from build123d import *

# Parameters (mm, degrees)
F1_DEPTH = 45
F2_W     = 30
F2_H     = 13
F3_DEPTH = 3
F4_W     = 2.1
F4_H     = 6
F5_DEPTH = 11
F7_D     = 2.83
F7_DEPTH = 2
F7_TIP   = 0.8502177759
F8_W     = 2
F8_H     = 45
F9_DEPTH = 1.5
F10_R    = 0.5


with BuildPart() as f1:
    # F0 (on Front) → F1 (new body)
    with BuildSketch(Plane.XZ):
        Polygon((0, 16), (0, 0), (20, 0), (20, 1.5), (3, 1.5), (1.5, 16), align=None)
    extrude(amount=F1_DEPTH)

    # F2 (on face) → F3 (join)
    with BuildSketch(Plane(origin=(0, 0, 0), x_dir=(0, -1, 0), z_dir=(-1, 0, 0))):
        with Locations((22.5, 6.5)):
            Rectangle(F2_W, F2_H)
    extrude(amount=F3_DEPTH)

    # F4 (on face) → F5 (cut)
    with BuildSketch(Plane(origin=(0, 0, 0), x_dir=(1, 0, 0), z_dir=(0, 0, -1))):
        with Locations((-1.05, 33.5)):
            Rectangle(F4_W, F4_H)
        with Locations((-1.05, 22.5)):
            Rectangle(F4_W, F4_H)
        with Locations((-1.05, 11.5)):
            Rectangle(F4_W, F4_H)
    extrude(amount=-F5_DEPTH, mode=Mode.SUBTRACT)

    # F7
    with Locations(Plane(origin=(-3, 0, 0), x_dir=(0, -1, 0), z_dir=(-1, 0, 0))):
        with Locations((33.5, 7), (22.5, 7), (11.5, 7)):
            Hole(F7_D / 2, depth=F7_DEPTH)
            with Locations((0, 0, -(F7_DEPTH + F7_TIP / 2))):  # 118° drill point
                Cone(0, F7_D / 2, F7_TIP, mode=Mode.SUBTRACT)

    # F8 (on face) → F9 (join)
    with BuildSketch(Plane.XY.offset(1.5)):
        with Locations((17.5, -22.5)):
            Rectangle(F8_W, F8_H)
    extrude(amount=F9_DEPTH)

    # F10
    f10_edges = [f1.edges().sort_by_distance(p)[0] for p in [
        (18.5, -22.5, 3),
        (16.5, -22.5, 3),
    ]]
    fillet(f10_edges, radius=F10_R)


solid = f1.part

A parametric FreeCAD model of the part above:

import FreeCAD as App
import Part
import Sketcher
Q = App.Units.Quantity


def edges_at(feature, points):
    """Names of the edges that pass closest to the given points."""
    edges = feature.Shape.Edges
    near = lambda p: min(range(len(edges)), key=lambda i: edges[i].distToShape(Part.Vertex(*p))[0])
    return sorted({f"Edge{near(p) + 1}" for p in points})

doc = App.newDocument("Part")
params = doc.addObject("Spreadsheet::Sheet", "Params")
for row, (alias, value) in enumerate([
    ("sketch1_width", "20 mm"),
    ("sketch1_width2", "17 mm"),
    ("sketch1_height", "16 mm"),
    ("sketch1_width3", "1.5 mm"),
    ("pad1_length", "45 mm"),
    ("sketch2_width", "30 mm"),
    ("sketch2_height", "13 mm"),
    ("pad2_length", "3 mm"),
    ("sketch3_height", "6 mm"),
    ("sketch3_width", "2.1 mm"),
    ("pocket1_length", "11 mm"),
    ("sketch4_diameter", "2.83 mm"),
    ("hole_diameter", "2.83 mm"),
    ("hole_depth", "2 mm"),
    ("sketch5_width", "2 mm"),
    ("sketch5_height", "45 mm"),
    ("pad3_length", "1.5 mm"),
    ("fillet_radius", "0.5 mm"),
], start=1):
    params.set(f"A{row}", alias)
    params.set(f"B{row}", "=" + value)
    params.setAlias(f"B{row}", alias)

body = doc.addObject("PartDesign::Body", "Body")

sketch1 = body.newObject("Sketcher::SketchObject", "Sketch")
sketch1.AttachmentSupport = (doc.getObject("XZ_Plane"), [""])
sketch1.MapMode = "FlatFace"
sketch1.addGeometry([
    Part.LineSegment(App.Vector(0, 16, 0), App.Vector(0, 0, 0)),
    Part.LineSegment(App.Vector(0, 0, 0), App.Vector(20, 0, 0)),
    Part.LineSegment(App.Vector(20, 0, 0), App.Vector(20, 1.5, 0)),
    Part.LineSegment(App.Vector(20, 1.5, 0), App.Vector(3, 1.5, 0)),
    Part.LineSegment(App.Vector(3, 1.5, 0), App.Vector(1.5, 16, 0)),
    Part.LineSegment(App.Vector(1.5, 16, 0), App.Vector(0, 16, 0)),
], False)
sketch1.addConstraint([
    Sketcher.Constraint("Coincident", 0, 2, 1, 1),
    Sketcher.Constraint("Coincident", 1, 2, 2, 1),
    Sketcher.Constraint("Coincident", 2, 2, 3, 1),
    Sketcher.Constraint("Coincident", 3, 2, 4, 1),
    Sketcher.Constraint("Coincident", 4, 2, 5, 1),
    Sketcher.Constraint("Coincident", 5, 2, 0, 1),
    Sketcher.Constraint("Vertical", 0),
    Sketcher.Constraint("Horizontal", 1),
    Sketcher.Constraint("Vertical", 2),
    Sketcher.Constraint("Horizontal", 3),
    Sketcher.Constraint("Horizontal", 5),
    Sketcher.Constraint("Coincident", 0, 2, -1, 1),
    Sketcher.Constraint("Equal", 5, 2),
    Sketcher.Constraint("DistanceX", 1, 1, 1, 2, Q("20 mm")),
    Sketcher.Constraint("DistanceX", 3, 2, 3, 1, Q("17 mm")),
    Sketcher.Constraint("DistanceY", 0, 2, 0, 1, Q("16 mm")),
    Sketcher.Constraint("DistanceX", 5, 2, 5, 1, Q("1.5 mm")),
])
sketch1.setExpression("Constraints[13]", "Params.sketch1_width")
sketch1.setExpression("Constraints[14]", "Params.sketch1_width2")
sketch1.setExpression("Constraints[15]", "Params.sketch1_height")
sketch1.setExpression("Constraints[16]", "Params.sketch1_width3")
pad1 = body.newObject("PartDesign::Pad", "Pad")
pad1.Profile = sketch1
pad1.setExpression("Length", "Params.pad1_length")

sketch2 = body.newObject("Sketcher::SketchObject", "Sketch001")
sketch2.AttachmentSupport = (doc.getObject("YZ_Plane"), [""])
sketch2.MapMode = "FlatFace"
sketch2.addGeometry([
    Part.LineSegment(App.Vector(-7.5, 13, 0), App.Vector(-7.5, 0, 0)),
    Part.LineSegment(App.Vector(-7.5, 0, 0), App.Vector(-37.5, 0, 0)),
    Part.LineSegment(App.Vector(-37.5, 0, 0), App.Vector(-37.5, 13, 0)),
    Part.LineSegment(App.Vector(-37.5, 13, 0), App.Vector(-7.5, 13, 0)),
], False)
sketch2.addConstraint([
    Sketcher.Constraint("Coincident", 0, 2, 1, 1),
    Sketcher.Constraint("Coincident", 1, 2, 2, 1),
    Sketcher.Constraint("Coincident", 2, 2, 3, 1),
    Sketcher.Constraint("Coincident", 3, 2, 0, 1),
    Sketcher.Constraint("Vertical", 0),
    Sketcher.Constraint("Horizontal", 1),
    Sketcher.Constraint("Vertical", 2),
    Sketcher.Constraint("Horizontal", 3),
    Sketcher.Constraint("PointOnObject", 0, 2, -1),
    Sketcher.Constraint("DistanceX", 1, 2, 1, 1, Q("30 mm")),
    Sketcher.Constraint("DistanceY", 0, 2, 0, 1, Q("13 mm")),
    Sketcher.Constraint("DistanceX", 0, 2, -1, 1, Q("7.5 mm")),
])
sketch2.setExpression("Constraints[9]", "Params.sketch2_width")
sketch2.setExpression("Constraints[10]", "Params.sketch2_height")
pad2 = body.newObject("PartDesign::Pad", "Pad001")
pad2.Profile = sketch2
pad2.setExpression("Length", "Params.pad2_length")
pad2.Reversed = True

sketch3 = body.newObject("Sketcher::SketchObject", "Sketch002")
sketch3.AttachmentSupport = (doc.getObject("XY_Plane"), [""])
sketch3.MapMode = "FlatFace"
sketch3.addGeometry([
    Part.LineSegment(App.Vector(-2.1, -36.5, 0), App.Vector(-2.1, -30.5, 0)),
    Part.LineSegment(App.Vector(-2.1, -30.5, 0), App.Vector(0, -30.5, 0)),
    Part.LineSegment(App.Vector(0, -30.5, 0), App.Vector(0, -36.5, 0)),
    Part.LineSegment(App.Vector(0, -36.5, 0), App.Vector(-2.1, -36.5, 0)),
    Part.LineSegment(App.Vector(-2.1, -25.5, 0), App.Vector(-2.1, -19.5, 0)),
    Part.LineSegment(App.Vector(-2.1, -19.5, 0), App.Vector(0, -19.5, 0)),
    Part.LineSegment(App.Vector(0, -19.5, 0), App.Vector(0, -25.5, 0)),
    Part.LineSegment(App.Vector(0, -25.5, 0), App.Vector(-2.1, -25.5, 0)),
    Part.LineSegment(App.Vector(-2.1, -14.5, 0), App.Vector(-2.1, -8.5, 0)),
    Part.LineSegment(App.Vector(-2.1, -8.5, 0), App.Vector(0, -8.5, 0)),
    Part.LineSegment(App.Vector(0, -8.5, 0), App.Vector(0, -14.5, 0)),
    Part.LineSegment(App.Vector(0, -14.5, 0), App.Vector(-2.1, -14.5, 0)),
], False)
sketch3.addConstraint([
    Sketcher.Constraint("Coincident", 0, 2, 1, 1),
    Sketcher.Constraint("Coincident", 1, 2, 2, 1),
    Sketcher.Constraint("Coincident", 2, 2, 3, 1),
    Sketcher.Constraint("Coincident", 3, 2, 0, 1),
    Sketcher.Constraint("Coincident", 4, 2, 5, 1),
    Sketcher.Constraint("Coincident", 5, 2, 6, 1),
    Sketcher.Constraint("Coincident", 6, 2, 7, 1),
    Sketcher.Constraint("Coincident", 7, 2, 4, 1),
    Sketcher.Constraint("Coincident", 8, 2, 9, 1),
    Sketcher.Constraint("Coincident", 9, 2, 10, 1),
    Sketcher.Constraint("Coincident", 10, 2, 11, 1),
    Sketcher.Constraint("Coincident", 11, 2, 8, 1),
    Sketcher.Constraint("Vertical", 0),
    Sketcher.Constraint("Horizontal", 1),
    Sketcher.Constraint("Vertical", 2),
    Sketcher.Constraint("Horizontal", 3),
    Sketcher.Constraint("Vertical", 4),
    Sketcher.Constraint("Horizontal", 5),
    Sketcher.Constraint("Vertical", 6),
    Sketcher.Constraint("Horizontal", 7),
    Sketcher.Constraint("Vertical", 8),
    Sketcher.Constraint("Horizontal", 9),
    Sketcher.Constraint("Vertical", 10),
    Sketcher.Constraint("Horizontal", 11),
    Sketcher.Constraint("PointOnObject", 1, 2, -2),
    Sketcher.Constraint("PointOnObject", 5, 2, -2),
    Sketcher.Constraint("PointOnObject", 9, 2, -2),
    Sketcher.Constraint("Vertical", 3, 2, 4, 2),
    Sketcher.Constraint("Vertical", 7, 2, 8, 2),
    Sketcher.Constraint("Equal", 2, 4),
    Sketcher.Constraint("Equal", 6, 8),
    Sketcher.Constraint("DistanceY", 0, 1, 0, 2, Q("6 mm")),
    Sketcher.Constraint("DistanceX", 1, 1, 1, 2, Q("2.1 mm")),
    Sketcher.Constraint("DistanceY", 0, 2, 4, 2, Q("11 mm")),
    Sketcher.Constraint("DistanceY", 4, 2, 8, 2, Q("11 mm")),
    Sketcher.Constraint("DistanceY", 0, 2, -1, 1, Q("30.5 mm")),
])
sketch3.setExpression("Constraints[31]", "Params.sketch3_height")
sketch3.setExpression("Constraints[32]", "Params.sketch3_width")
pocket1 = body.newObject("PartDesign::Pocket", "Pocket")
pocket1.Profile = sketch3
pocket1.setExpression("Length", "Params.pocket1_length")
pocket1.Reversed = True

sketch4 = body.newObject("Sketcher::SketchObject", "Sketch003")
sketch4.AttachmentSupport = (doc.getObject("YZ_Plane"), [""])
sketch4.MapMode = "FlatFace"
sketch4.AttachmentOffset = App.Placement(App.Vector(0, 0, -3), App.Rotation())
sketch4.addGeometry([
    Part.Circle(App.Vector(-33.5, 7, 0), App.Vector(0, 0, 1), 1.415),
    Part.Circle(App.Vector(-22.5, 7, 0), App.Vector(0, 0, 1), 1.415),
    Part.Circle(App.Vector(-11.5, 7, 0), App.Vector(0, 0, 1), 1.415),
], False)
sketch4.addConstraint([
    Sketcher.Constraint("Equal", 0, 1),
    Sketcher.Constraint("Equal", 1, 2),
    Sketcher.Constraint("Horizontal", 0, 3, 1, 3),
    Sketcher.Constraint("Horizontal", 1, 3, 2, 3),
    Sketcher.Constraint("Diameter", 0, Q("2.83 mm")),
    Sketcher.Constraint("DistanceY", -1, 1, 0, 3, Q("7 mm")),
    Sketcher.Constraint("DistanceX", 0, 3, 1, 3, Q("11 mm")),
    Sketcher.Constraint("DistanceX", 1, 3, 2, 3, Q("11 mm")),
    Sketcher.Constraint("DistanceX", 0, 3, -1, 1, Q("33.5 mm")),
])
sketch4.setExpression("Constraints[4]", "Params.sketch4_diameter")
doc.recompute()
hole = body.newObject("PartDesign::Hole", "Hole")
hole.Profile = sketch4
hole.ThreadType = "None"
hole.setExpression("Diameter", "Params.hole_diameter")
hole.DepthType = "Dimension"
hole.setExpression("Depth", "Params.hole_depth")
hole.DrillPoint = "Angled"
hole.DrillPointAngle = 118
hole.Reversed = True

sketch5 = body.newObject("Sketcher::SketchObject", "Sketch004")
sketch5.AttachmentSupport = (doc.getObject("XY_Plane"), [""])
sketch5.MapMode = "FlatFace"
sketch5.AttachmentOffset = App.Placement(App.Vector(0, 0, 1.5), App.Rotation())
sketch5.addGeometry([
    Part.LineSegment(App.Vector(16.5, 0, 0), App.Vector(16.5, -45, 0)),
    Part.LineSegment(App.Vector(16.5, -45, 0), App.Vector(18.5, -45, 0)),
    Part.LineSegment(App.Vector(18.5, -45, 0), App.Vector(18.5, 0, 0)),
    Part.LineSegment(App.Vector(18.5, 0, 0), App.Vector(16.5, 0, 0)),
], False)
sketch5.addConstraint([
    Sketcher.Constraint("Coincident", 0, 2, 1, 1),
    Sketcher.Constraint("Coincident", 1, 2, 2, 1),
    Sketcher.Constraint("Coincident", 2, 2, 3, 1),
    Sketcher.Constraint("Coincident", 3, 2, 0, 1),
    Sketcher.Constraint("Vertical", 0),
    Sketcher.Constraint("Horizontal", 1),
    Sketcher.Constraint("Vertical", 2),
    Sketcher.Constraint("Horizontal", 3),
    Sketcher.Constraint("PointOnObject", 2, 2, -1),
    Sketcher.Constraint("DistanceX", 1, 1, 1, 2, Q("2 mm")),
    Sketcher.Constraint("DistanceY", 0, 2, 0, 1, Q("45 mm")),
    Sketcher.Constraint("DistanceX", -1, 1, 0, 2, Q("16.5 mm")),
])
sketch5.setExpression("Constraints[9]", "Params.sketch5_width")
sketch5.setExpression("Constraints[10]", "Params.sketch5_height")
pad3 = body.newObject("PartDesign::Pad", "Pad002")
pad3.Profile = sketch5
pad3.setExpression("Length", "Params.pad3_length")
doc.recompute()

fillet = body.newObject("PartDesign::Fillet", "Fillet")
fillet.Base = (pad3, edges_at(pad3, [(18.5, -22.5, 3), (16.5, -22.5, 3)]))
fillet.setExpression("Radius", "Params.fillet_radius")

doc.recompute()
